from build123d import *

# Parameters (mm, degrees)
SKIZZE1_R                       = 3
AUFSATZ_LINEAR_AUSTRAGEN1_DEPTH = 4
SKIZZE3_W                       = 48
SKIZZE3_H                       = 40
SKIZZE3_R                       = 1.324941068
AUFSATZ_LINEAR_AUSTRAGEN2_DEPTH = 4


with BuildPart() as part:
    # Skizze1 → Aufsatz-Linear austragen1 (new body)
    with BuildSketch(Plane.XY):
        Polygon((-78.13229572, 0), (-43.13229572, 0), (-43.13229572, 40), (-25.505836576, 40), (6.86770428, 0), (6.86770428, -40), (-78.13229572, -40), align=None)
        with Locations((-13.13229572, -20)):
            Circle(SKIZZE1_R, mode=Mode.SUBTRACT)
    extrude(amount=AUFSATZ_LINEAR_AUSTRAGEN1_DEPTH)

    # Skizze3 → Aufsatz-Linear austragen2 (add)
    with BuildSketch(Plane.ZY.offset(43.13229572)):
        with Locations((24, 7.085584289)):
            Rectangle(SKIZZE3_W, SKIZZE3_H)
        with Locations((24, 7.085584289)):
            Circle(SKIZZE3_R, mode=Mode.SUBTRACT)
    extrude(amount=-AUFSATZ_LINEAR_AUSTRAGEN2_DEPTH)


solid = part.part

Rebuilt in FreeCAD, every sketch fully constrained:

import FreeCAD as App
import Part
import Sketcher
from FreeCAD import Vector


def add_polygon(sketch, points):
    """Adds a closed chain of lines whose ends are joined by coincident constraints."""
    first, n = sketch.GeometryCount, len(points)
    for a, b in zip(points, points[1:] + points[:1]):
        sketch.addGeometry(Part.LineSegment(App.Vector(*a, 0), App.Vector(*b, 0)), False)
    for i in range(n):
        sketch.addConstraint(Sketcher.Constraint("Coincident", first + i, 2, first + (i + 1) % n, 1))

doc = App.newDocument("Part")
body = doc.addObject("PartDesign::Body", "Body")

# Sketch on XY plane
sketch1 = body.newObject("Sketcher::SketchObject", "Sketch")
sketch1.AttachmentSupport = (doc.getObject("XY_Plane"), [""])
sketch1.MapMode = "FlatFace"
add_polygon(sketch1, [(-43.1, 0), (-78.1, 0), (-78.1, -40), (6.9, -40), (6.9, 0), (-25.5, 40), (-43.1, 40)])  # lines 0-6
sketch1.addGeometry(Part.Circle(Vector(-13.1, -20, 0), Vector(0, 0, 1), 3), False)  # 7
sketch1.addConstraint([
    Sketcher.Constraint("Horizontal", 0),
    Sketcher.Constraint("Vertical", 1),
    Sketcher.Constraint("Horizontal", 2),
    Sketcher.Constraint("Vertical", 3),
    Sketcher.Constraint("Horizontal", 5),
    Sketcher.Constraint("Vertical", 6),
    Sketcher.Constraint("PointOnObject", 0, 2, -1),
    Sketcher.Constraint("PointOnObject", 3, 2, -1),
    Sketcher.Constraint("Equal", 3, 6),
    Sketcher.Constraint("Diameter", 7, 6.0),
    Sketcher.Constraint("DistanceX", 0, 2, 0, 1, 35.0),
    Sketcher.Constraint("DistanceX", 2, 1, 2, 2, 85.0),
    Sketcher.Constraint("DistanceY", 1, 2, 1, 1, 40.0),
    Sketcher.Constraint("DistanceY", 7, 3, -1, 1, 20.0),
    Sketcher.Constraint("DistanceX", 0, 2, 7, 3, 65.0),
    Sketcher.Constraint("DistanceX", 5, 2, 5, 1, 17.626459),
    Sketcher.Constraint("DistanceX", 7, 3, -1, 1, 13.132296),
])
pad1 = body.newObject("PartDesign::Pad", "Pad")
pad1.Profile = sketch1
pad1.Length = 4

# Sketch on YZ plane
sketch2 = body.newObject("Sketcher::SketchObject", "Sketch001")
sketch2.AttachmentSupport = (doc.getObject("YZ_Plane"), [""])
sketch2.MapMode = "FlatFace"
sketch2.AttachmentOffset = App.Placement(Vector(0, 0, -43.132296), App.Rotation())
add_polygon(sketch2, [(27.1, 0), (-12.9, 0), (-12.9, 48), (27.1, 48)])  # lines 0-3
sketch2.addGeometry(Part.Circle(Vector(7.1, 24, 0), Vector(0, 0, 1), 1.3), False)  # 4
sketch2.addConstraint([
    Sketcher.Constraint("Horizontal", 0),
    Sketcher.Constraint("Vertical", 1),
    Sketcher.Constraint("Horizontal", 2),
    Sketcher.Constraint("Vertical", 3),
    Sketcher.Constraint("PointOnObject", 0, 2, -1),
    Sketcher.Constraint("DistanceX", 0, 2, 0, 1, 40.0),
    Sketcher.Constraint("DistanceY", 1, 1, 1, 2, 48.0),
    Sketcher.Constraint("DistanceY", -1, 1, 4, 3, 24.0),
    Sketcher.Constraint("DistanceX", 0, 2, 4, 3, 20.0),
    Sketcher.Constraint("Diameter", 4, 2.649882),
    Sketcher.Constraint("DistanceX", -1, 1, 4, 3, 7.085584),
])
pad2 = body.newObject("PartDesign::Pad", "Pad001")
pad2.Profile = sketch2
pad2.Length = 4

doc.recompute()
